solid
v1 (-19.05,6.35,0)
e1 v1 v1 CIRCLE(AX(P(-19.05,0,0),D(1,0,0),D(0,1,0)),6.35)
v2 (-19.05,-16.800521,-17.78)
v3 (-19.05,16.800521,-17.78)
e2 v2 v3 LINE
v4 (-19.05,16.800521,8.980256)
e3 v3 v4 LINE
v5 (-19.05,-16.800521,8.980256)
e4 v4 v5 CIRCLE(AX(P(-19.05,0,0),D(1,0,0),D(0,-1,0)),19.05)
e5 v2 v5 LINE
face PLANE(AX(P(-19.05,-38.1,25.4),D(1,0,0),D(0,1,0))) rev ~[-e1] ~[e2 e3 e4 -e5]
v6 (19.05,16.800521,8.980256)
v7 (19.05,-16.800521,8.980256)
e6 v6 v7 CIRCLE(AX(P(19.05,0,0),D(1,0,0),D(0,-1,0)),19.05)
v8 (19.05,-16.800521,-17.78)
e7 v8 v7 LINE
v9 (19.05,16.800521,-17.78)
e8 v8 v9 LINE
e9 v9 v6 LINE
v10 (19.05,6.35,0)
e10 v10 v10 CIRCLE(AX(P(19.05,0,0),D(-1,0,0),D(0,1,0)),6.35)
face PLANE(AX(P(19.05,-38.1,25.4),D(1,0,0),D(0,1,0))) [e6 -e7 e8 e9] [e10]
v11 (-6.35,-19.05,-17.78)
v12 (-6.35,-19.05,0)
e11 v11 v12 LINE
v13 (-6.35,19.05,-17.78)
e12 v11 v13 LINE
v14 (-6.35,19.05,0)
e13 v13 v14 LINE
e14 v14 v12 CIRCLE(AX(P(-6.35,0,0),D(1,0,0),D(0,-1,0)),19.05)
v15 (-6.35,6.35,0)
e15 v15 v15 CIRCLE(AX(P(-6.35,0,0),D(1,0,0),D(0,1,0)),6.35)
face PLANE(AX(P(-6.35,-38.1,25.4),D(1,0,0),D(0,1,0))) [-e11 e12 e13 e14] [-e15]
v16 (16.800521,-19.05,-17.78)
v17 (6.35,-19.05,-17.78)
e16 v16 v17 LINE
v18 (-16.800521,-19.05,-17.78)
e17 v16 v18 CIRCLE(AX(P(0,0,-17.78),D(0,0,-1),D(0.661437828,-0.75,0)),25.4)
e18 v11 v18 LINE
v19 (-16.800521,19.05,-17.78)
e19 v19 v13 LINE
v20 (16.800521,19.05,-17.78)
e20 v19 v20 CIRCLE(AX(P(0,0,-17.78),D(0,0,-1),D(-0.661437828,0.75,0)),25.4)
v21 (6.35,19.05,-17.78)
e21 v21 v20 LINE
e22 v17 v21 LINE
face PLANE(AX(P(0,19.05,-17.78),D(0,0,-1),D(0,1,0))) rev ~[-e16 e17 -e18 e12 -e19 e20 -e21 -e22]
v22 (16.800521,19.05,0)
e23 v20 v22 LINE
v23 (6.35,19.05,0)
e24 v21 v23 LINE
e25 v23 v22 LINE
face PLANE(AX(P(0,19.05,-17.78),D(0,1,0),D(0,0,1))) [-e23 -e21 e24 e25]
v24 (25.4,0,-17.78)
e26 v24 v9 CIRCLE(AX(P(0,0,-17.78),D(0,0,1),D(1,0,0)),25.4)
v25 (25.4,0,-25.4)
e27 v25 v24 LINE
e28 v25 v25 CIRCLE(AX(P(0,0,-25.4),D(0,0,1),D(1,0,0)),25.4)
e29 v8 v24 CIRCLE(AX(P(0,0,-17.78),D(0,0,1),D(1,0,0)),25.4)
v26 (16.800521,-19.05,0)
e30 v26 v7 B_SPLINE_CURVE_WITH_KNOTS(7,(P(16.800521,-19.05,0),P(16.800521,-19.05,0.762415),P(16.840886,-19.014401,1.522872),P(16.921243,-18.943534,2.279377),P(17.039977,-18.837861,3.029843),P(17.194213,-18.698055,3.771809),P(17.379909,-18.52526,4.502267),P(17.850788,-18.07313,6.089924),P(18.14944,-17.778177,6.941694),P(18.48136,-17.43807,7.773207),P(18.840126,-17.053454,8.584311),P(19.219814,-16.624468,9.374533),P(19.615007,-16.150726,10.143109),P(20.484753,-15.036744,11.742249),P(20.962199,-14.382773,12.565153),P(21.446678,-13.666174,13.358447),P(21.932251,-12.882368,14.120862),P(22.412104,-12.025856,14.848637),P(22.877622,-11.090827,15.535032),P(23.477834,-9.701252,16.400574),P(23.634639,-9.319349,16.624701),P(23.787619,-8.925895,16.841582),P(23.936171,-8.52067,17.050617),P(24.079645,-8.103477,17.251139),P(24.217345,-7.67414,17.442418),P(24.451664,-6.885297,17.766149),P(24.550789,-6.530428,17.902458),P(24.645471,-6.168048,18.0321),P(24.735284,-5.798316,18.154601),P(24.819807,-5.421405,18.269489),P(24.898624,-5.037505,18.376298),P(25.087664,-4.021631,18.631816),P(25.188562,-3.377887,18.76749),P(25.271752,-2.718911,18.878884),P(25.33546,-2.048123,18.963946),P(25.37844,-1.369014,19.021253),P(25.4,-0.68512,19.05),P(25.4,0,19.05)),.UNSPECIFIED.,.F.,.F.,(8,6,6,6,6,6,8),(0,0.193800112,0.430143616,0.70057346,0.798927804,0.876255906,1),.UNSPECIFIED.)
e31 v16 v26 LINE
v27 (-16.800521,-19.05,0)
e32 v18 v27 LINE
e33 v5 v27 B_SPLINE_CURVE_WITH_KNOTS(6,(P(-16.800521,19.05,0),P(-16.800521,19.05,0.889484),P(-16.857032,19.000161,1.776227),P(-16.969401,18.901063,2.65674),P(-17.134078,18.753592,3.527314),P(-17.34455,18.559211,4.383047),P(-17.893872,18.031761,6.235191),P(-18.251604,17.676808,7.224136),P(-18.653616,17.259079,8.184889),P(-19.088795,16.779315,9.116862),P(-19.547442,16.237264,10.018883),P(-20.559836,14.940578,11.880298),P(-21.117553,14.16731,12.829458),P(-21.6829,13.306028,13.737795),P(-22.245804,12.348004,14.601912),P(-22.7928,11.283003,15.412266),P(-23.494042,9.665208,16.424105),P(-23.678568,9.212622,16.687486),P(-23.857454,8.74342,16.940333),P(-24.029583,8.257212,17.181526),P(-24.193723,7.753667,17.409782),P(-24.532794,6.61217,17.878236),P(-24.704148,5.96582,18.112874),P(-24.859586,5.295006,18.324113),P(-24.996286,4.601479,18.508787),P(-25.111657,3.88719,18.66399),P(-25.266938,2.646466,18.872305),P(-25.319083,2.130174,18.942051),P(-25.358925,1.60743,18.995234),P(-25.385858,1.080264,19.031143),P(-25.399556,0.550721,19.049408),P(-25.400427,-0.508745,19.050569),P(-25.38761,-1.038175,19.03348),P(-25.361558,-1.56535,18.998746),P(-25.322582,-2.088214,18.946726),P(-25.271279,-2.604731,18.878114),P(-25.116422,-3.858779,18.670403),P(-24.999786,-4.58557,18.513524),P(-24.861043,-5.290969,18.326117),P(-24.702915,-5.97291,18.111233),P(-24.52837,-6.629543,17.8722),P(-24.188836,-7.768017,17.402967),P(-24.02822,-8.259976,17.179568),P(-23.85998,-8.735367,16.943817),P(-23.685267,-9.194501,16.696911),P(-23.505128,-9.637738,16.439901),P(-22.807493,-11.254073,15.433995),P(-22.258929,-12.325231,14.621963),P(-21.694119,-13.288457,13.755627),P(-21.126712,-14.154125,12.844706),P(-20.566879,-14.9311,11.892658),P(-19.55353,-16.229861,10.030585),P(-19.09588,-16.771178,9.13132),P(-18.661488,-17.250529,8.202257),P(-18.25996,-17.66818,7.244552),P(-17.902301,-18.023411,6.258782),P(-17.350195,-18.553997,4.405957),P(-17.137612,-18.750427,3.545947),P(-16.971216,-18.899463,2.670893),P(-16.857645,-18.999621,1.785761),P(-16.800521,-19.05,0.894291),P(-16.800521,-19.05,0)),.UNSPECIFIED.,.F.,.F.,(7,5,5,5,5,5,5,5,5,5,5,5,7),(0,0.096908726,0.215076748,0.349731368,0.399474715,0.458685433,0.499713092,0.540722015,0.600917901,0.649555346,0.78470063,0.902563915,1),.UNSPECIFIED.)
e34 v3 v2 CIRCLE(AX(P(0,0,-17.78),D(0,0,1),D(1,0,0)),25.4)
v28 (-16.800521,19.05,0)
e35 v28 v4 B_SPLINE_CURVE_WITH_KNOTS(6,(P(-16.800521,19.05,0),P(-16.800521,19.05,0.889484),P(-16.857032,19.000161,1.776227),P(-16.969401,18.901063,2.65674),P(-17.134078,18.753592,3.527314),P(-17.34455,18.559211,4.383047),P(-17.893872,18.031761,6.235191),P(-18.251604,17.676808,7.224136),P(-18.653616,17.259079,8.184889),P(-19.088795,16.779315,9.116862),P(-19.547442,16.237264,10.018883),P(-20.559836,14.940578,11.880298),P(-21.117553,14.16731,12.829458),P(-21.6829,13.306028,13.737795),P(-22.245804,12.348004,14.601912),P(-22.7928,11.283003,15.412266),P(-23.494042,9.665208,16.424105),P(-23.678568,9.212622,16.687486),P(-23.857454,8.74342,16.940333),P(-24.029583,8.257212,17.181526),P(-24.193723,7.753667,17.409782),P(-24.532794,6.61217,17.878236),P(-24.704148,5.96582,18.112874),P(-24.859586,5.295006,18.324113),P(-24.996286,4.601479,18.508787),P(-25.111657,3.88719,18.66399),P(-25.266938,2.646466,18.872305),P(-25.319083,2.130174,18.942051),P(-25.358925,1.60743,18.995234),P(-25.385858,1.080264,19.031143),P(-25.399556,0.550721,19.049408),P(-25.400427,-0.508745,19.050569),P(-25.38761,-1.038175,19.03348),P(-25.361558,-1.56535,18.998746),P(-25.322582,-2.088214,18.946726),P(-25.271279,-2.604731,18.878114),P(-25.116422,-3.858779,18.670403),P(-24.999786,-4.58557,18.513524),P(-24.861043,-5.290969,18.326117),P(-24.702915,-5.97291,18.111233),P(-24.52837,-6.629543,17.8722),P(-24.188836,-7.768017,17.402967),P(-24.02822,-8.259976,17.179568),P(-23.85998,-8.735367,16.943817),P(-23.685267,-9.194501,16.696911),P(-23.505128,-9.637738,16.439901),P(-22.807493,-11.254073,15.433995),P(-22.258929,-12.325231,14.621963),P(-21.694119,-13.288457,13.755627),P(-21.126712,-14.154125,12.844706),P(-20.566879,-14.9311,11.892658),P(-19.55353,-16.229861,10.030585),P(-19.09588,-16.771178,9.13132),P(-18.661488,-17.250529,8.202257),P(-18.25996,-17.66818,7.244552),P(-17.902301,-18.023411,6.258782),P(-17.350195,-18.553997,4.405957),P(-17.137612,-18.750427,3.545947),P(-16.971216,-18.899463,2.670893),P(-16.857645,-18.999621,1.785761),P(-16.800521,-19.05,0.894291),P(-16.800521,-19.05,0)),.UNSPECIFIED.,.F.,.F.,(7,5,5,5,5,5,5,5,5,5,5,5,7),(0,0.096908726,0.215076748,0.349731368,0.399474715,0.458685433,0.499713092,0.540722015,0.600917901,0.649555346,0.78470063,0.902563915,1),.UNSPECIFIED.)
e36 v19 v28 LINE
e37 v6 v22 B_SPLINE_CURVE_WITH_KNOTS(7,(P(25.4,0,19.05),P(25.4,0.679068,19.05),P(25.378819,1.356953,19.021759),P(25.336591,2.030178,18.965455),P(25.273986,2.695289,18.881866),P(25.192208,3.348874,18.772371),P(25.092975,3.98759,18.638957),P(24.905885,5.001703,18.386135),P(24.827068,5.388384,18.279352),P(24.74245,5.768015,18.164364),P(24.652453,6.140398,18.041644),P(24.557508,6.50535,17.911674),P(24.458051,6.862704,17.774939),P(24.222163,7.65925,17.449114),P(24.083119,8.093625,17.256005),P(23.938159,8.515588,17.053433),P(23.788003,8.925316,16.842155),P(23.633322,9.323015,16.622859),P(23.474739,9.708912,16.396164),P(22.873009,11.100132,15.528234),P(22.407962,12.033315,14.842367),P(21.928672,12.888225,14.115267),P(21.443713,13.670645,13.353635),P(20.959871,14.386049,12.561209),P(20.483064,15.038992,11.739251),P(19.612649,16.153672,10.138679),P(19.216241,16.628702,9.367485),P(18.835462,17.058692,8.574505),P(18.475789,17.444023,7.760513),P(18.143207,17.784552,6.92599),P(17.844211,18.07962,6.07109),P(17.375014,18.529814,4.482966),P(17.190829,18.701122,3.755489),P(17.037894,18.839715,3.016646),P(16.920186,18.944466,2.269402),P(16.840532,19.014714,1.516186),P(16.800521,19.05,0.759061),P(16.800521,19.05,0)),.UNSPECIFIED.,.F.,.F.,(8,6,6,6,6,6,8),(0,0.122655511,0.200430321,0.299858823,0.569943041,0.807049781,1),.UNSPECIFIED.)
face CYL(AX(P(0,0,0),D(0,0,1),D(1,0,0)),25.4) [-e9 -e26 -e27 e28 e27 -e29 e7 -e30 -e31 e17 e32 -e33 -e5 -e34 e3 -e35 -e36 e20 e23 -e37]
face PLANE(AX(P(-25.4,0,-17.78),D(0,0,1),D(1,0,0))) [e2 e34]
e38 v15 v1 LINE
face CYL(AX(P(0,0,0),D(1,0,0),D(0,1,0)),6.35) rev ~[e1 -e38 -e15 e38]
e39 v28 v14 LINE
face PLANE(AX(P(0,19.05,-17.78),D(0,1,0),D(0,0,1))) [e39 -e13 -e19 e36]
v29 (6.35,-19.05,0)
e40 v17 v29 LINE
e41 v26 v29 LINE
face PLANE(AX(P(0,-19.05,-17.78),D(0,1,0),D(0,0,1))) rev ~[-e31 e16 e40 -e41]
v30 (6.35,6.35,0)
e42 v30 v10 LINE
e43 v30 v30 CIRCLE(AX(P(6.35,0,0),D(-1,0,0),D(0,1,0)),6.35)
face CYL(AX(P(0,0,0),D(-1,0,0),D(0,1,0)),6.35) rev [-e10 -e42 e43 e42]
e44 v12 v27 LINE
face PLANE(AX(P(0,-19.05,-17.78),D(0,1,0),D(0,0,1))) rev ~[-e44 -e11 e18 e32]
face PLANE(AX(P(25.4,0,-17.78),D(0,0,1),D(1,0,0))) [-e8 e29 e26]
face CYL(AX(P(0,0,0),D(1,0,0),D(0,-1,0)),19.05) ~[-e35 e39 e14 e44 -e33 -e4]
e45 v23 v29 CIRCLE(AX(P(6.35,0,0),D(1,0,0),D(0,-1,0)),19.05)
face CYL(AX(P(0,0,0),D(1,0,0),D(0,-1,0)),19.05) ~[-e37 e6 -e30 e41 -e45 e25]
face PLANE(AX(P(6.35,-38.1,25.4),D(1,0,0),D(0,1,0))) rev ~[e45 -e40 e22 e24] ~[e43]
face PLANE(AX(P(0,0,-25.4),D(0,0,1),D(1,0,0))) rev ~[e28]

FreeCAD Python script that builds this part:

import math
import FreeCAD as App
import Part
import Sketcher

V = App.Vector
Q = App.Units.Quantity

doc = App.newDocument("Part")
body = doc.addObject("PartDesign::Body", "Body")

# Sketch on XY plane
sketch1 = body.newObject("Sketcher::SketchObject", "Sketch")
sketch1.AttachmentSupport = (doc.getObject("XY_Plane"), [""])
sketch1.MapMode = "FlatFace"
sketch1.addGeometry(Part.Circle(V(0, 0, 0), V(0, 0, 1), 25), False)
sketch1.addConstraint(Sketcher.Constraint("Coincident", 0, 3, -1, 1))
sketch1.addConstraint(Sketcher.Constraint("Diameter", 0, Q("2 in")))
pad1 = body.newObject("PartDesign::Pad", "Pad")
pad1.Profile = sketch1
pad1.Length = Q("2 in")
pad1.Midplane = True

# Sketch on XY plane
sketch2 = body.newObject("Sketcher::SketchObject", "Sketch001")
sketch2.AttachmentSupport = (doc.getObject("XY_Plane"), [""])
sketch2.MapMode = "FlatFace"
sketch2.AttachmentOffset = App.Placement(V(0, 0, 1 * 25.4), App.Rotation())
sketch2.addGeometry(Part.LineSegment(V(-6, 38, 0), V(-6, -38, 0)), False)
sketch2.addGeometry(Part.LineSegment(V(-6, -38, 0), V(6, -38, 0)), False)
sketch2.addGeometry(Part.LineSegment(V(6, -38, 0), V(6, 38, 0)), False)
sketch2.addGeometry(Part.LineSegment(V(6, 38, 0), V(-6, 38, 0)), False)
sketch2.addGeometry(Part.LineSegment(V(19, 38, 0), V(19, -38, 0)), False)
sketch2.addGeometry(Part.LineSegment(V(19, -38, 0), V(32, -38, 0)), False)
sketch2.addGeometry(Part.LineSegment(V(32, -38, 0), V(32, 38, 0)), False)
sketch2.addGeometry(Part.LineSegment(V(32, 38, 0), V(19, 38, 0)), False)
sketch2.addGeometry(Part.LineSegment(V(-32, 38, 0), V(-32, -38, 0)), False)
sketch2.addGeometry(Part.LineSegment(V(-32, -38, 0), V(-19, -38, 0)), False)
sketch2.addGeometry(Part.LineSegment(V(-19, -38, 0), V(-19, 38, 0)), False)
sketch2.addGeometry(Part.LineSegment(V(-19, 38, 0), V(-32, 38, 0)), False)
sketch2.addConstraint(Sketcher.Constraint("Coincident", 0, 2, 1, 1))
sketch2.addConstraint(Sketcher.Constraint("Coincident", 1, 2, 2, 1))
sketch2.addConstraint(Sketcher.Constraint("Coincident", 2, 2, 3, 1))
sketch2.addConstraint(Sketcher.Constraint("Coincident", 3, 2, 0, 1))
sketch2.addConstraint(Sketcher.Constraint("Coincident", 4, 2, 5, 1))
sketch2.addConstraint(Sketcher.Constraint("Coincident", 5, 2, 6, 1))
sketch2.addConstraint(Sketcher.Constraint("Coincident", 6, 2, 7, 1))
sketch2.addConstraint(Sketcher.Constraint("Coincident", 7, 2, 4, 1))
sketch2.addConstraint(Sketcher.Constraint("Coincident", 8, 2, 9, 1))
sketch2.addConstraint(Sketcher.Constraint("Coincident", 9, 2, 10, 1))
sketch2.addConstraint(Sketcher.Constraint("Coincident", 10, 2, 11, 1))
sketch2.addConstraint(Sketcher.Constraint("Coincident", 11, 2, 8, 1))
sketch2.addConstraint(Sketcher.Constraint("Vertical", 0))
sketch2.addConstraint(Sketcher.Constraint("Horizontal", 1))
sketch2.addConstraint(Sketcher.Constraint("Vertical", 2))
sketch2.addConstraint(Sketcher.Constraint("Horizontal", 3))
sketch2.addConstraint(Sketcher.Constraint("Vertical", 4))
sketch2.addConstraint(Sketcher.Constraint("Horizontal", 5))
sketch2.addConstraint(Sketcher.Constraint("Vertical", 6))
sketch2.addConstraint(Sketcher.Constraint("Horizontal", 7))
sketch2.addConstraint(Sketcher.Constraint("Vertical", 8))
sketch2.addConstraint(Sketcher.Constraint("Horizontal", 9))
sketch2.addConstraint(Sketcher.Constraint("Vertical", 10))
sketch2.addConstraint(Sketcher.Constraint("Horizontal", 11))
sketch2.addConstraint(Sketcher.Constraint("Symmetric", 0, 2, 2, 2, -1, 1))
sketch2.addConstraint(Sketcher.Constraint("Symmetric", 6, 2, 8, 2, -1, 1))
sketch2.addConstraint(Sketcher.Constraint("Symmetric", 4, 2, 10, 2, -1, 1))
sketch2.addConstraint(Sketcher.Constraint("Horizontal", 1, 2, 4, 2))
sketch2.addConstraint(Sketcher.Constraint("Horizontal", 3, 2, 6, 2))
sketch2.addConstraint(Sketcher.Constraint("Equal", 3, 5))
sketch2.addConstraint(Sketcher.Constraint("DistanceY", 0, 2, 0, 1, Q("3 in")))
sketch2.addConstraint(Sketcher.Constraint("DistanceX", 1, 1, 1, 2, Q("0.5 in")))
sketch2.addConstraint(Sketcher.Constraint("DistanceX", 0, 2, 4, 2, Q("1 in")))
pocket1 = body.newObject("PartDesign::Pocket", "Pocket")
pocket1.Profile = sketch2
pocket1.Length = Q("1.7 in")

# Sketch on YZ plane
sketch3 = body.newObject("Sketcher::SketchObject", "Sketch002")
sketch3.AttachmentSupport = (doc.getObject("YZ_Plane"), [""])
sketch3.MapMode = "FlatFace"
sketch3.addGeometry(Part.Circle(V(0, 0, 0), V(0, 0, 1), 6), False)
sketch3.addGeometry(Part.ArcOfCircle(Part.Circle(V(0, 0, 0), V(0, 0, 1), 19), math.radians(0), math.radians(180)), False)
sketch3.addGeometry(Part.LineSegment(V(19, 0, 0), V(19, -18, 0)), False)
sketch3.addGeometry(Part.LineSegment(V(19, -18, 0), V(38, -18, 0)), False)
sketch3.addGeometry(Part.LineSegment(V(38, -18, 0), V(38, 38, 0)), False)
sketch3.addGeometry(Part.LineSegment(V(38, 38, 0), V(-38, 38, 0)), False)
sketch3.addGeometry(Part.LineSegment(V(-38, 38, 0), V(-38, -18, 0)), False)
sketch3.addGeometry(Part.LineSegment(V(-38, -18, 0), V(-19, -18, 0)), False)
sketch3.addGeometry(Part.LineSegment(V(-19, -18, 0), V(-19, 0, 0)), False)
sketch3.addConstraint(Sketcher.Constraint("Tangent", 1, 1, 2, 1))
sketch3.addConstraint(Sketcher.Constraint("Coincident", 2, 2, 3, 1))
sketch3.addConstraint(Sketcher.Constraint("Coincident", 3, 2, 4, 1))
sketch3.addConstraint(Sketcher.Constraint("Coincident", 4, 2, 5, 1))
sketch3.addConstraint(Sketcher.Constraint("Coincident", 5, 2, 6, 1))
sketch3.addConstraint(Sketcher.Constraint("Coincident", 6, 2, 7, 1))
sketch3.addConstraint(Sketcher.Constraint("Coincident", 7, 2, 8, 1))
sketch3.addConstraint(Sketcher.Constraint("Tangent", 8, 2, 1, 2))
sketch3.addConstraint(Sketcher.Constraint("Vertical", 2))
sketch3.addConstraint(Sketcher.Constraint("Horizontal", 3))
sketch3.addConstraint(Sketcher.Constraint("Vertical", 4))
sketch3.addConstraint(Sketcher.Constraint("Horizontal", 5))
sketch3.addConstraint(Sketcher.Constraint("Vertical", 6))
sketch3.addConstraint(Sketcher.Constraint("Horizontal", 7))
sketch3.addConstraint(Sketcher.Constraint("Vertical", 8))
sketch3.addConstraint(Sketcher.Constraint("Coincident", 0, 3, -1, 1))
sketch3.addConstraint(Sketcher.Constraint("Coincident", 1, 3, -1, 1))
sketch3.addConstraint(Sketcher.Constraint("Symmetric", 3, 2, 6, 2, -2))
sketch3.addConstraint(Sketcher.Constraint("Diameter", 0, Q("0.5 in")))
sketch3.addConstraint(Sketcher.Constraint("DistanceX", 5, 2, 5, 1, Q("3 in")))
sketch3.addConstraint(Sketcher.Constraint("Radius", 1, Q("0.75 in")))
sketch3.addConstraint(Sketcher.Constraint("DistanceY", 2, 2, 2, 1, Q("0.7 in")))
sketch3.addConstraint(Sketcher.Constraint("DistanceY", 4, 1, 4, 2, Q("2.2 in")))
pocket2 = body.newObject("PartDesign::Pocket", "Pocket001")
pocket2.Profile = sketch3
pocket2.Length = Q("2 in")
pocket2.Midplane = True

doc.recompute()
